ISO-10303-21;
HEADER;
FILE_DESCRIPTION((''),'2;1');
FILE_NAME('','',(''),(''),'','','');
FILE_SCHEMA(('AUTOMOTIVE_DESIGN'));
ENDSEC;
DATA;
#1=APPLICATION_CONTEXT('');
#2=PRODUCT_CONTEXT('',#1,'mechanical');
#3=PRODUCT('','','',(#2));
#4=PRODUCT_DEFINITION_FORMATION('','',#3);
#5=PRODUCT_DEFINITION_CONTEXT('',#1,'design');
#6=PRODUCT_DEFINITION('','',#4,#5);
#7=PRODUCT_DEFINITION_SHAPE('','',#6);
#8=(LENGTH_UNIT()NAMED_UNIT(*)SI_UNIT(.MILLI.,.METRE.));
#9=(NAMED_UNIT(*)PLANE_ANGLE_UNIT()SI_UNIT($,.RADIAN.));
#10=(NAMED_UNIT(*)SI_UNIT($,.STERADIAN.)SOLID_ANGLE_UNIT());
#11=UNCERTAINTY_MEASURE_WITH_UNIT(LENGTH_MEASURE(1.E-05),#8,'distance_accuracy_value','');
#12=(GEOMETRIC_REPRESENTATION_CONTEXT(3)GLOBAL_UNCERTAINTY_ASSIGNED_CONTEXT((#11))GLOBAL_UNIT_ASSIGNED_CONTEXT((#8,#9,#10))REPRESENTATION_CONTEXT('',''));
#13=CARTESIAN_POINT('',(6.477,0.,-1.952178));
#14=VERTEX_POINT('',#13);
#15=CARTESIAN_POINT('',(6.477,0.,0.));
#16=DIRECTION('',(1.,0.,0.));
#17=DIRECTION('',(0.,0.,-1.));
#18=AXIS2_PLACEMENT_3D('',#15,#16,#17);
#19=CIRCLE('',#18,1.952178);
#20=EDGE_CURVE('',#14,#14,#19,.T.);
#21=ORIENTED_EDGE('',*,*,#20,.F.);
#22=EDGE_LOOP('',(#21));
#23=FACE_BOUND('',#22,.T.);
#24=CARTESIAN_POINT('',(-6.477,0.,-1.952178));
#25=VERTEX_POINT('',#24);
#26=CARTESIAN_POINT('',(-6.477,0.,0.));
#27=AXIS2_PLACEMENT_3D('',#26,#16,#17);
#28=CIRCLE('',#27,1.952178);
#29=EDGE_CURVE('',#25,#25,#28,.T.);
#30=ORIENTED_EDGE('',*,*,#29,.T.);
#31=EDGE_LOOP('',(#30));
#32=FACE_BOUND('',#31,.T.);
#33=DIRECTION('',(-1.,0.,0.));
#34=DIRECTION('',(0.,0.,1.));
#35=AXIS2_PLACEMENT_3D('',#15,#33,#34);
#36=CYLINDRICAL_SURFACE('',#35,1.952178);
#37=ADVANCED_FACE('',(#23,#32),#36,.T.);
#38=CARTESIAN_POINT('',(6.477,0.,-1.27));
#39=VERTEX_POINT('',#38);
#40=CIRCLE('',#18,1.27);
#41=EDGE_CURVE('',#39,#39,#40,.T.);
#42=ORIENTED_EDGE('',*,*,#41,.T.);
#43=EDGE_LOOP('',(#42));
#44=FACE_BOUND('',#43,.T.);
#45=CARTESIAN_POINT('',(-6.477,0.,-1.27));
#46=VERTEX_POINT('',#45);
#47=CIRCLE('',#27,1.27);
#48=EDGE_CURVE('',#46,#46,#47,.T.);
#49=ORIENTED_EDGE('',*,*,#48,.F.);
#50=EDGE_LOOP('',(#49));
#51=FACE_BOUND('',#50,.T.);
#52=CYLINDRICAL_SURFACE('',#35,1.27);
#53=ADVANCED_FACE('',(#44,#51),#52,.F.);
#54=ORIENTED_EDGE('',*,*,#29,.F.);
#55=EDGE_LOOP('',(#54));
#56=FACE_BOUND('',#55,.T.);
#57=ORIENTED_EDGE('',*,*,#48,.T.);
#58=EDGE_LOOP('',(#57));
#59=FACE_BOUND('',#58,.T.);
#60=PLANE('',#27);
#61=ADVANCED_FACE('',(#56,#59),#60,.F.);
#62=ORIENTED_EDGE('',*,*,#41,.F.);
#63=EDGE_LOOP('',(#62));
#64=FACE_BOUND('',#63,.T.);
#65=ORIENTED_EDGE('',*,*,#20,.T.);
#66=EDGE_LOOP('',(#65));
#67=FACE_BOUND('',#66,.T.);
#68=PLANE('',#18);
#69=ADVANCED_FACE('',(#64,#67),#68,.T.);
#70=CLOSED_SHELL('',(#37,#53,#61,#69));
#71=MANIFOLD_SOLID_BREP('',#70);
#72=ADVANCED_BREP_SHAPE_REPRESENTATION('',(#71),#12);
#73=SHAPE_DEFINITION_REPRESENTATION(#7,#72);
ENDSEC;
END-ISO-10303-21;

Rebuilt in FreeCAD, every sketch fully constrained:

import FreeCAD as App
import Part
import Sketcher
Q = App.Units.Quantity

doc = App.newDocument("Part")
body = doc.addObject("PartDesign::Body", "Body")

# Sketch on YZ plane
sketch1 = body.newObject("Sketcher::SketchObject", "Sketch")
sketch1.AttachmentSupport = (doc.getObject("YZ_Plane"), [""])
sketch1.MapMode = "FlatFace"
sketch1.addGeometry([
    Part.Circle(App.Vector(0, 0, 0), App.Vector(0, 0, 1), 2),
    Part.Circle(App.Vector(0, 0, 0), App.Vector(0, 0, 1), 1.3),
], False)
sketch1.addConstraint([
    Sketcher.Constraint("Coincident", 0, 3, -1, 1),
    Sketcher.Constraint("Coincident", 1, 3, -1, 1),
    Sketcher.Constraint("Diameter", 1, Q("0.1 in")),
    Sketcher.Constraint("Diameter", 0, Q("3.904356 mm")),
])
pad1 = body.newObject("PartDesign::Pad", "Pad")
pad1.Profile = sketch1
pad1.Length = Q("0.51 in")
pad1.Midplane = True

doc.recompute()
